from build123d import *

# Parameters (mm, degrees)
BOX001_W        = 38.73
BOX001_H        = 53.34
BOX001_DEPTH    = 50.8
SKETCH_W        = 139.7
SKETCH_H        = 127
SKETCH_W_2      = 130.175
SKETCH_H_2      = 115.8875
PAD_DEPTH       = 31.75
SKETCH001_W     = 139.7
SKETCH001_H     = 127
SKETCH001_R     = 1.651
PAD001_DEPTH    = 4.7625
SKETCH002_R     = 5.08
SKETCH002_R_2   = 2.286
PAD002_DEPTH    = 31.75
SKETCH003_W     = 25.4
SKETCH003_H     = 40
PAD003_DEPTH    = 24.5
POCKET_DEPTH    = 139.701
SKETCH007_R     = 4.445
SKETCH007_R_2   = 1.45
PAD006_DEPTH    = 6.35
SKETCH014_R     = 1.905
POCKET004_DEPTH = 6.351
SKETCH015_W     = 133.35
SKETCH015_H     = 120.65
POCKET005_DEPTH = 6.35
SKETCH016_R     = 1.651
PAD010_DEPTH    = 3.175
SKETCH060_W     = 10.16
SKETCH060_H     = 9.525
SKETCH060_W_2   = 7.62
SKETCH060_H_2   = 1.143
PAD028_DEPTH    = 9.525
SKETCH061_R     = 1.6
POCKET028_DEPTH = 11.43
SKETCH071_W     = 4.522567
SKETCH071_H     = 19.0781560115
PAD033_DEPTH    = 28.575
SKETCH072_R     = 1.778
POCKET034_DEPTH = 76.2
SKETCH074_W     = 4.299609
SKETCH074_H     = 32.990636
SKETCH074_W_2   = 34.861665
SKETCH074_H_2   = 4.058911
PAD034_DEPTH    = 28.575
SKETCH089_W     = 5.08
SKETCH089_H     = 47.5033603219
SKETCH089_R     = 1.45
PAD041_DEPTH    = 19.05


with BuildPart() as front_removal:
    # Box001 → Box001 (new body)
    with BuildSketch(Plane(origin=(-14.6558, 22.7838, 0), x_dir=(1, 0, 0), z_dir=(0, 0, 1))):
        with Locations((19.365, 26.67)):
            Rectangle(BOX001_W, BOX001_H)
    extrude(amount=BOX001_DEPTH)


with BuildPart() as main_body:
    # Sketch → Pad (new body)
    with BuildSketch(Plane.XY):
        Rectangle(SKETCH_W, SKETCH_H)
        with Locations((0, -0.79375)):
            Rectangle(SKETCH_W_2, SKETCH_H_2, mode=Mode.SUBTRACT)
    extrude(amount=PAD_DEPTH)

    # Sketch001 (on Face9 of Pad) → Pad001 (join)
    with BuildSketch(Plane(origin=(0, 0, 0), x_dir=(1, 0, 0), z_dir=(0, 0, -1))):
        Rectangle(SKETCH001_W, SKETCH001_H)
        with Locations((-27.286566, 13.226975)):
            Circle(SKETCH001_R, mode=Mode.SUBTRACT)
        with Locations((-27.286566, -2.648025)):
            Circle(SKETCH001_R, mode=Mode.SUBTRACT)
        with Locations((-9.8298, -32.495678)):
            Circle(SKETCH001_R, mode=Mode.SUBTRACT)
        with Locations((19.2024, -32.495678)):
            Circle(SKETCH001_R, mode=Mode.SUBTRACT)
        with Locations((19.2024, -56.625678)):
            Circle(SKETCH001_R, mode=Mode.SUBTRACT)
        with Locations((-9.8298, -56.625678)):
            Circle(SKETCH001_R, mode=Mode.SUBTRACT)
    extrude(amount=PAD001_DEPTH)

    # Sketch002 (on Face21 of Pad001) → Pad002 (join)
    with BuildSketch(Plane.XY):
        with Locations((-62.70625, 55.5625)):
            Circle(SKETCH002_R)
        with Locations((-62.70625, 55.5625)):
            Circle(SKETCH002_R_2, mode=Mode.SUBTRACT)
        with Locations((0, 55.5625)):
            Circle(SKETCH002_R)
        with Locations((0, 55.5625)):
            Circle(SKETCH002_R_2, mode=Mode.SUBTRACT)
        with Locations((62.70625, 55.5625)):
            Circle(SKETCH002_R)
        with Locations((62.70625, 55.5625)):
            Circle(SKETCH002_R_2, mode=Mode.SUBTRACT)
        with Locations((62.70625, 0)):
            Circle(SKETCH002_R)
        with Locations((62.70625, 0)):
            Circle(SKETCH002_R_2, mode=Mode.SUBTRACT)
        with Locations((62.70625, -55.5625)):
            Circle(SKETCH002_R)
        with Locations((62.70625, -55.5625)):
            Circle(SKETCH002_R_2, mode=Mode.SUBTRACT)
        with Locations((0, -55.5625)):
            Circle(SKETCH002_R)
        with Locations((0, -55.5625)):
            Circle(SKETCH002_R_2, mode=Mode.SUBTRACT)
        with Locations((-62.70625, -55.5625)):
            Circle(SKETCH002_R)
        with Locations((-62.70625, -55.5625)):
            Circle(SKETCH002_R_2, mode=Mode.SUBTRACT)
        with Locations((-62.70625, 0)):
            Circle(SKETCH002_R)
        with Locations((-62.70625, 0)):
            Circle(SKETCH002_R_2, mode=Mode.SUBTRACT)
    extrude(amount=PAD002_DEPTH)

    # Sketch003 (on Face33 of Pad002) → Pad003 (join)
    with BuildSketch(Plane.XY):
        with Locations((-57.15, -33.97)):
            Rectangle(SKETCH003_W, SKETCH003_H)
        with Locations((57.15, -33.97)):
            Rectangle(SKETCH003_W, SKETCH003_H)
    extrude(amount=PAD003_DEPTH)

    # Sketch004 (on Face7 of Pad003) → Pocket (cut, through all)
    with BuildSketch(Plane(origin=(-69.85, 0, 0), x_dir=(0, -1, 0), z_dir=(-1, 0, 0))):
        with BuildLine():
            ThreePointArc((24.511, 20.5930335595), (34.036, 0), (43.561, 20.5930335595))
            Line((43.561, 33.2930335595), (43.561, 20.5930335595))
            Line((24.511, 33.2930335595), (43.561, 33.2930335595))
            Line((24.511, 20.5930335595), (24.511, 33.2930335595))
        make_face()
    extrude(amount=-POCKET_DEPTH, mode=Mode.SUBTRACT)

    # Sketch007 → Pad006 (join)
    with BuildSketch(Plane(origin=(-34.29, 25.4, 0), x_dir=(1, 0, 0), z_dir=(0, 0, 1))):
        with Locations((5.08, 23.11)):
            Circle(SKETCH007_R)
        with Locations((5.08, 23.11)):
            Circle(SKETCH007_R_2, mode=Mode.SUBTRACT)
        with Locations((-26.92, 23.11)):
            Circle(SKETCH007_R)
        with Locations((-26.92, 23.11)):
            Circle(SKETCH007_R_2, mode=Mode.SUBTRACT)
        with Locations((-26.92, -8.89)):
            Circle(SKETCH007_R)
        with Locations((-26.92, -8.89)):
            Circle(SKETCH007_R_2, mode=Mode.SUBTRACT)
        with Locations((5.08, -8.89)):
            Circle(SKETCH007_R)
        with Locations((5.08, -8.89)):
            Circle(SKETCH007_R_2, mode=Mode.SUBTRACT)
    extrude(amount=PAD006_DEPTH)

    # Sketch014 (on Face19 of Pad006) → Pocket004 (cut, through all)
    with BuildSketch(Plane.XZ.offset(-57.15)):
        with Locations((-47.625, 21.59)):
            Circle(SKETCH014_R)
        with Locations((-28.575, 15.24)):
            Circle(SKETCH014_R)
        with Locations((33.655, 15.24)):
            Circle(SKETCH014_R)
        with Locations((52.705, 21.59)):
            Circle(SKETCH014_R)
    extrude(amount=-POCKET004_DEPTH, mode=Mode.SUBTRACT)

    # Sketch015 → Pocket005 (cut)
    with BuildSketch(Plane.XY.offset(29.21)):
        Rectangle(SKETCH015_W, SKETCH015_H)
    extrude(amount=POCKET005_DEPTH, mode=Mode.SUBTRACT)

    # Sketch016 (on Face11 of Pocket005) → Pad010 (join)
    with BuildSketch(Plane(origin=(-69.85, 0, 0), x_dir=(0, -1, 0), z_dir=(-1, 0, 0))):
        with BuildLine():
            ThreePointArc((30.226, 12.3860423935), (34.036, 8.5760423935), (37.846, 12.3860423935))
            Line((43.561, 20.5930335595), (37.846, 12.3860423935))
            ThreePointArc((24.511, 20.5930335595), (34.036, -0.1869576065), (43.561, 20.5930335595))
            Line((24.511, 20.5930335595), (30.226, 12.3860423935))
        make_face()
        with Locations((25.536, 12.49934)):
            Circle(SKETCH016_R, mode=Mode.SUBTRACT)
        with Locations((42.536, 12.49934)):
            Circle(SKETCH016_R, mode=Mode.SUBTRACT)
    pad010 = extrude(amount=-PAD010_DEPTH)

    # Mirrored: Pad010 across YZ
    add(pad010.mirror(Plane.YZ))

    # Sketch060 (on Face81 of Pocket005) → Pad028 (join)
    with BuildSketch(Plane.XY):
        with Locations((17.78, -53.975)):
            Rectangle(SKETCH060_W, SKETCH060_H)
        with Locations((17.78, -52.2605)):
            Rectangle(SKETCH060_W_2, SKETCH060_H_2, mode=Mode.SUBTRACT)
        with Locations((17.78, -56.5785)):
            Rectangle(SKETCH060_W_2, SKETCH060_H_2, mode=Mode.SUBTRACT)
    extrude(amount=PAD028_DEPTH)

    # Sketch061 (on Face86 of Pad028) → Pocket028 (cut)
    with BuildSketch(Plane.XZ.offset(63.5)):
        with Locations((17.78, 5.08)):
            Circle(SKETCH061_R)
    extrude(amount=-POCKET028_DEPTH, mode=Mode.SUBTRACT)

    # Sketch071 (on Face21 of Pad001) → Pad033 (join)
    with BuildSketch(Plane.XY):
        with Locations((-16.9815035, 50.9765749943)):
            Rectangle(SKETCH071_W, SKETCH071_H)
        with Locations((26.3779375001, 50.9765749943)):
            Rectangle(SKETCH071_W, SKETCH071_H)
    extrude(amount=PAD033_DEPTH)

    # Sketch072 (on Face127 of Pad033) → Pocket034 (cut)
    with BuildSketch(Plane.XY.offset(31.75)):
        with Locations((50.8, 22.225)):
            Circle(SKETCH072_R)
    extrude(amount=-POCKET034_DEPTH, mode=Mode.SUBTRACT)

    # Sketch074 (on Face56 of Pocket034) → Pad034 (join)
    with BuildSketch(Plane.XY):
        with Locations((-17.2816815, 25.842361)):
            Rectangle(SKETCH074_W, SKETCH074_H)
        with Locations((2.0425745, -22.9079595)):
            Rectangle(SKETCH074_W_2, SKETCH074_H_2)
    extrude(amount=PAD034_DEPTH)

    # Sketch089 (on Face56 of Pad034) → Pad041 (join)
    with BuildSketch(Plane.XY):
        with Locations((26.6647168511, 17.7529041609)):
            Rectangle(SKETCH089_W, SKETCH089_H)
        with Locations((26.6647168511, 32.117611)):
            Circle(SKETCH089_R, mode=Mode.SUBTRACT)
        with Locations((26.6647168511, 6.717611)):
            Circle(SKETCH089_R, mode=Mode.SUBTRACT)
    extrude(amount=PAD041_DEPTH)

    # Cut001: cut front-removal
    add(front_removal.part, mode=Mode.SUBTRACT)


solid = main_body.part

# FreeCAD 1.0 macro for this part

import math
import FreeCAD as App
import Part
import Sketcher
Q = App.Units.Quantity


def add_polygon(sketch, points):
    """Adds a closed chain of lines whose ends are joined by coincident constraints."""
    first, n = sketch.GeometryCount, len(points)
    for a, b in zip(points, points[1:] + points[:1]):
        sketch.addGeometry(Part.LineSegment(App.Vector(*a, 0), App.Vector(*b, 0)), False)
    for i in range(n):
        sketch.addConstraint(Sketcher.Constraint("Coincident", first + i, 2, first + (i + 1) % n, 1))

doc = App.newDocument("Part")
body = doc.addObject("PartDesign::Body", "Body")

sketch1 = body.newObject("Sketcher::SketchObject", "Sketch")
sketch1.AttachmentSupport = (doc.getObject("XY_Plane"), [""])
sketch1.MapMode = "FlatFace"
add_polygon(sketch1, [(-15, 76), (-15, 23), (24, 23), (24, 76)])
sketch1.addConstraint([
    Sketcher.Constraint("Vertical", 0),
    Sketcher.Constraint("Horizontal", 1),
    Sketcher.Constraint("Vertical", 2),
    Sketcher.Constraint("Horizontal", 3),
    Sketcher.Constraint("DistanceY", 0, 2, 0, 1, Q("2.1 in")),
    Sketcher.Constraint("DistanceX", 0, 2, -1, 1, Q("0.577 in")),
    Sketcher.Constraint("DistanceY", -1, 1, 0, 2, Q("0.897 in")),
    Sketcher.Constraint("DistanceX", 1, 1, 1, 2, 38.73),
])
pad1 = body.newObject("PartDesign::Pad", "Pad")
pad1.Profile = sketch1
pad1.Length = Q("2 in")
body2 = doc.addObject("PartDesign::Body", "Body001")

sketch2 = body2.newObject("Sketcher::SketchObject", "Sketch001")
sketch2.AttachmentSupport = (doc.getObject("XY_Plane001"), [""])
sketch2.MapMode = "FlatFace"
add_polygon(sketch2, [(-70, 64), (-70, -64), (70, -64), (70, 64)])
add_polygon(sketch2, [(65, -59), (-65, -59), (-65, 57), (65, 57)])
sketch2.addConstraint([
    Sketcher.Constraint("Vertical", 0),
    Sketcher.Constraint("Horizontal", 1),
    Sketcher.Constraint("Vertical", 2),
    Sketcher.Constraint("Horizontal", 3),
    Sketcher.Constraint("Horizontal", 4),
    Sketcher.Constraint("Vertical", 5),
    Sketcher.Constraint("Horizontal", 6),
    Sketcher.Constraint("Vertical", 7),
    Sketcher.Constraint("Symmetric", 0, 2, 2, 2, -1, 1),
    Sketcher.Constraint("DistanceY", 0, 2, 0, 1, Q("5 in")),
    Sketcher.Constraint("DistanceX", 1, 1, 1, 2, Q("5.5 in")),
    Sketcher.Constraint("DistanceX", 4, 2, 4, 1, Q("5.125 in")),
    Sketcher.Constraint("DistanceY", 5, 1, 5, 2, Q("4.5625 in")),
    Sketcher.Constraint("DistanceY", -1, 1, 5, 2, Q("2.25 in")),
    Sketcher.Constraint("DistanceX", 4, 2, -1, 1, Q("2.5625 in")),
])
pad2 = body2.newObject("PartDesign::Pad", "Pad001")
pad2.Profile = sketch2
pad2.Length = Q("1.25 in")

sketch3 = body2.newObject("Sketcher::SketchObject", "Sketch002")
sketch3.AttachmentSupport = (doc.getObject("XY_Plane001"), [""])
sketch3.MapMode = "FlatFace"
add_polygon(sketch3, [(-69.8, -63.5), (-69.8, 63.5), (69.8, 63.5), (69.8, -63.5)])
sketch3.addGeometry(Part.Circle(App.Vector(-9.8, 56.6, 0), App.Vector(0, 0, 1), 1.7), False)
sketch3.addGeometry(Part.Circle(App.Vector(-9.8, 32.5, 0), App.Vector(0, 0, 1), 1.7), False)
sketch3.addGeometry(Part.Circle(App.Vector(19.2, 56.6, 0), App.Vector(0, 0, 1), 1.7), False)
sketch3.addGeometry(Part.Circle(App.Vector(19.2, 32.5, 0), App.Vector(0, 0, 1), 1.7), False)
sketch3.addGeometry(Part.Circle(App.Vector(-27.3, 2.6, 0), App.Vector(0, 0, 1), 1.7), False)
sketch3.addGeometry(Part.Circle(App.Vector(-27.3, -13.2, 0), App.Vector(0, 0, 1), 1.7), False)
sketch3.addConstraint([
    Sketcher.Constraint("Vertical", 0),
    Sketcher.Constraint("Horizontal", 1),
    Sketcher.Constraint("Vertical", 2),
    Sketcher.Constraint("Horizontal", 3),
    Sketcher.Constraint("Equal", 4, 5),
    Sketcher.Constraint("Equal", 5, 6),
    Sketcher.Constraint("Equal", 6, 7),
    Sketcher.Constraint("Equal", 7, 8),
    Sketcher.Constraint("Equal", 8, 9),
    Sketcher.Constraint("Symmetric", 0, 2, 2, 2, -1, 1),
    Sketcher.Constraint("Horizontal", 4, 3, 6, 3),
    Sketcher.Constraint("Horizontal", 5, 3, 7, 3),
    Sketcher.Constraint("Vertical", 4, 3, 5, 3),
    Sketcher.Constraint("Vertical", 6, 3, 7, 3),
    Sketcher.Constraint("Vertical", 8, 3, 9, 3),
    Sketcher.Constraint("Diameter", 4, Q("0.13 in")),
    Sketcher.Constraint("DistanceY", 0, 1, 0, 2, Q("5 in")),
    Sketcher.Constraint("DistanceX", 1, 1, 1, 2, Q("5.5 in")),
    Sketcher.Constraint("DistanceY", 5, 3, 4, 3, Q("0.95 in")),
    Sketcher.Constraint("DistanceX", 4, 3, -1, 1, Q("0.387 in")),
    Sketcher.Constraint("DistanceX", -1, 1, 6, 3, Q("0.756 in")),
    Sketcher.Constraint("DistanceY", 9, 3, 8, 3, Q("0.625 in")),
    Sketcher.Constraint("DistanceY", 4, 3, 0, 2, 6.874322),
    Sketcher.Constraint("DistanceX", 8, 3, -1, 1, 27.286566),
    Sketcher.Constraint("DistanceY", -1, 1, 8, 3, 2.648025),
])
pad3 = body2.newObject("PartDesign::Pad", "Pad002")
pad3.Profile = sketch3
pad3.Length = Q("0.1875 in")
pad3.Reversed = True

sketch4 = body2.newObject("Sketcher::SketchObject", "Sketch003")
sketch4.AttachmentSupport = (doc.getObject("XY_Plane001"), [""])
sketch4.MapMode = "FlatFace"
sketch4.addGeometry([
    Part.Circle(App.Vector(-62.7, 55.6, 0), App.Vector(0, 0, 1), 5.1),
    Part.Circle(App.Vector(-62.7, 55.6, 0), App.Vector(0, 0, 1), 2.3),
    Part.Circle(App.Vector(0, 55.6, 0), App.Vector(0, 0, 1), 5.1),
    Part.Circle(App.Vector(0, 55.6, 0), App.Vector(0, 0, 1), 2.3),
    Part.Circle(App.Vector(62.7, 55.6, 0), App.Vector(0, 0, 1), 5.1),
    Part.Circle(App.Vector(62.7, 55.6, 0), App.Vector(0, 0, 1), 2.3),
    Part.Circle(App.Vector(62.7, 0, 0), App.Vector(0, 0, 1), 5.1),
    Part.Circle(App.Vector(62.7, 0, 0), App.Vector(0, 0, 1), 2.3),
    Part.Circle(App.Vector(62.7, -55.6, 0), App.Vector(0, 0, 1), 5.1),
    Part.Circle(App.Vector(62.7, -55.6, 0), App.Vector(0, 0, 1), 2.3),
    Part.Circle(App.Vector(0, -55.6, 0), App.Vector(0, 0, 1), 5.1),
    Part.Circle(App.Vector(0, -55.6, 0), App.Vector(0, 0, 1), 2.3),
    Part.Circle(App.Vector(-62.7, -55.6, 0), App.Vector(0, 0, 1), 5.1),
    Part.Circle(App.Vector(-62.7, -55.6, 0), App.Vector(0, 0, 1), 2.3),
    Part.Circle(App.Vector(-62.7, 0, 0), App.Vector(0, 0, 1), 5.1),
    Part.Circle(App.Vector(-62.7, 0, 0), App.Vector(0, 0, 1), 2.3),
], False)
sketch4.addConstraint([
    Sketcher.Constraint("Coincident", 1, 3, 0, 3),
    Sketcher.Constraint("Coincident", 3, 3, 2, 3),
    Sketcher.Constraint("Coincident", 5, 3, 4, 3),
    Sketcher.Constraint("Coincident", 7, 3, 6, 3),
    Sketcher.Constraint("Coincident", 9, 3, 8, 3),
    Sketcher.Constraint("Coincident", 11, 3, 10, 3),
    Sketcher.Constraint("Coincident", 13, 3, 12, 3),
    Sketcher.Constraint("Coincident", 15, 3, 14, 3),
    Sketcher.Constraint("Equal", 0, 2),
    Sketcher.Constraint("Equal", 1, 3),
    Sketcher.Constraint("Equal", 2, 4),
    Sketcher.Constraint("Equal", 3, 5),
    Sketcher.Constraint("Equal", 4, 6),
    Sketcher.Constraint("Equal", 5, 7),
    Sketcher.Constraint("Equal", 6, 8),
    Sketcher.Constraint("Equal", 7, 9),
    Sketcher.Constraint("Equal", 8, 10),
    Sketcher.Constraint("Equal", 9, 11),
    Sketcher.Constraint("Equal", 10, 12),
    Sketcher.Constraint("Equal", 11, 13),
    Sketcher.Constraint("Equal", 12, 14),
    Sketcher.Constraint("Equal", 13, 15),
    Sketcher.Constraint("Symmetric", 0, 3, 8, 3, -1, 1),
    Sketcher.Constraint("Symmetric", 2, 3, 10, 3, -1, 1),
    Sketcher.Constraint("Symmetric", 4, 3, 12, 3, -1, 1),
    Sketcher.Constraint("Symmetric", 6, 3, 14, 3, -1, 1),
    Sketcher.Constraint("Symmetric", 0, 3, 4, 3, -2),
    Sketcher.Constraint("PointOnObject", 2, 3, -2),
    Sketcher.Constraint("PointOnObject", 6, 3, -1),
    Sketcher.Constraint("Horizontal", 1, 3, 2, 3),
    Sketcher.Constraint("Vertical", 5, 3, 6, 3),
    Sketcher.Constraint("Diameter", 0, Q("0.4 in")),
    Sketcher.Constraint("Diameter", 1, Q("0.18 in")),
    Sketcher.Constraint("DistanceX", 0, 3, -1, 1, Q("2.46875 in")),
    Sketcher.Constraint("DistanceY", -1, 1, 0, 3, Q("2.1875 in")),
])
pad4 = body2.newObject("PartDesign::Pad", "Pad003")
pad4.Profile = sketch4
pad4.Length = Q("1.25 in")

sketch5 = body2.newObject("Sketcher::SketchObject", "Sketch004")
sketch5.AttachmentSupport = (doc.getObject("XY_Plane001"), [""])
sketch5.MapMode = "FlatFace"
add_polygon(sketch5, [(-70, -14), (-70, -54), (-44, -54), (-44, -14)])
add_polygon(sketch5, [(44, -14), (44, -54), (70, -54), (70, -14)])
sketch5.addConstraint([
    Sketcher.Constraint("Vertical", 0),
    Sketcher.Constraint("Horizontal", 1),
    Sketcher.Constraint("Vertical", 2),
    Sketcher.Constraint("Horizontal", 3),
    Sketcher.Constraint("Vertical", 4),
    Sketcher.Constraint("Horizontal", 5),
    Sketcher.Constraint("Vertical", 6),
    Sketcher.Constraint("Horizontal", 7),
    Sketcher.Constraint("Symmetric", 1, 2, 4, 2, -2),
    Sketcher.Constraint("Symmetric", 3, 2, 6, 2, -2),
    Sketcher.Constraint("DistanceX", 1, 1, 1, 2, Q("1 in")),
    Sketcher.Constraint("DistanceX", 1, 2, 4, 2, Q("3.5 in")),
    Sketcher.Constraint("DistanceY", 2, 2, -1, 1, Q("0.55 in")),
    Sketcher.Constraint("DistanceY", 0, 2, 0, 1, 40.0),
])
pad5 = body2.newObject("PartDesign::Pad", "Pad004")
pad5.Profile = sketch5
pad5.Length = 24.5

sketch6 = body2.newObject("Sketcher::SketchObject", "Sketch005")
sketch6.AttachmentSupport = (doc.getObject("YZ_Plane001"), [""])
sketch6.MapMode = "FlatFace"
sketch6.AttachmentOffset = App.Placement(App.Vector(0, 0, -2.75 * 25.4), App.Rotation())
sketch6.addGeometry([
    Part.ArcOfCircle(Part.Circle(App.Vector(-34, 12, 0), App.Vector(0, 0, 1), 12), math.radians(140), math.radians(400)),
    Part.LineSegment(App.Vector(-44, 21, 0), App.Vector(-44, 33, 0)),
    Part.LineSegment(App.Vector(-44, 33, 0), App.Vector(-25, 33, 0)),
    Part.LineSegment(App.Vector(-25, 33, 0), App.Vector(-25, 21, 0)),
], False)
sketch6.addConstraint([
    Sketcher.Constraint("Coincident", 0, 1, 1, 1),
    Sketcher.Constraint("Coincident", 1, 2, 2, 1),
    Sketcher.Constraint("Coincident", 2, 2, 3, 1),
    Sketcher.Constraint("Coincident", 3, 2, 0, 2),
    Sketcher.Constraint("Vertical", 1),
    Sketcher.Constraint("Horizontal", 2),
    Sketcher.Constraint("Vertical", 3),
    Sketcher.Constraint("Horizontal", 0, 1, 3, 2),
    Sketcher.Constraint("DistanceY", 1, 1, 1, 2, Q("0.5 in")),
    Sketcher.Constraint("DistanceX", 2, 1, 2, 2, Q("0.75 in")),
    Sketcher.Constraint("Radius", 0, Q("0.4921 in")),
    Sketcher.Constraint("DistanceX", 0, 3, -1, 1, Q("1.34 in")),
    Sketcher.Constraint("DistanceY", -1, 1, 0, 3, Q("0.4921 in")),
])
pocket1 = body2.newObject("PartDesign::Pocket", "Pocket")
pocket1.Profile = sketch6
pocket1.Type = "ThroughAll"
pocket1.Reversed = True

sketch7 = body2.newObject("Sketcher::SketchObject", "Sketch006")
sketch7.AttachmentSupport = (doc.getObject("XY_Plane001"), [""])
sketch7.MapMode = "FlatFace"
sketch7.addGeometry([
    Part.Circle(App.Vector(-29.2, 48.5, 0), App.Vector(0, 0, 1), 4.4),
    Part.Circle(App.Vector(-29.2, 48.5, 0), App.Vector(0, 0, 1), 1.4),
    Part.Circle(App.Vector(-61.2, 48.5, 0), App.Vector(0, 0, 1), 4.4),
    Part.Circle(App.Vector(-61.2, 48.5, 0), App.Vector(0, 0, 1), 1.4),
    Part.Circle(App.Vector(-61.2, 16.5, 0), App.Vector(0, 0, 1), 4.4),
    Part.Circle(App.Vector(-61.2, 16.5, 0), App.Vector(0, 0, 1), 1.4),
    Part.Circle(App.Vector(-29.2, 16.5, 0), App.Vector(0, 0, 1), 4.4),
    Part.Circle(App.Vector(-29.2, 16.5, 0), App.Vector(0, 0, 1), 1.4),
], False)
sketch7.addConstraint([
    Sketcher.Constraint("Coincident", 1, 3, 0, 3),
    Sketcher.Constraint("Coincident", 3, 3, 2, 3),
    Sketcher.Constraint("Coincident", 5, 3, 4, 3),
    Sketcher.Constraint("Coincident", 7, 3, 6, 3),
    Sketcher.Constraint("Equal", 0, 2),
    Sketcher.Constraint("Equal", 1, 3),
    Sketcher.Constraint("Equal", 2, 4),
    Sketcher.Constraint("Equal", 3, 5),
    Sketcher.Constraint("Equal", 4, 6),
    Sketcher.Constraint("Equal", 5, 7),
    Sketcher.Constraint("Horizontal", 1, 3, 2, 3),
    Sketcher.Constraint("Horizontal", 5, 3, 6, 3),
    Sketcher.Constraint("Vertical", 3, 3, 4, 3),
    Sketcher.Constraint("Vertical", 1, 3, 6, 3),
    Sketcher.Constraint("Diameter", 0, Q("0.35 in")),
    Sketcher.Constraint("Diameter", 1, 2.9),
    Sketcher.Constraint("DistanceX", 0, 3, -1, 1, Q("1.15 in")),
    Sketcher.Constraint("DistanceY", -1, 1, 4, 3, Q("0.65 in")),
    Sketcher.Constraint("DistanceY", -1, 1, 0, 3, 48.51),
    Sketcher.Constraint("DistanceX", 2, 3, -1, 1, 61.21),
])
pad6 = body2.newObject("PartDesign::Pad", "Pad005")
pad6.Profile = sketch7
pad6.Length = Q("0.25 in")

sketch8 = body2.newObject("Sketcher::SketchObject", "Sketch007")
sketch8.AttachmentSupport = (doc.getObject("XZ_Plane001"), [""])
sketch8.MapMode = "FlatFace"
sketch8.AttachmentOffset = App.Placement(App.Vector(0, 0, -2.25 * 25.4), App.Rotation())
sketch8.addGeometry([
    Part.Circle(App.Vector(-47.6, 21.6, 0), App.Vector(0, 0, 1), 1.9),
    Part.Circle(App.Vector(-28.6, 15.2, 0), App.Vector(0, 0, 1), 1.9),
    Part.Circle(App.Vector(33.7, 15.2, 0), App.Vector(0, 0, 1), 1.9),
    Part.Circle(App.Vector(52.7, 21.6, 0), App.Vector(0, 0, 1), 1.9),
], False)
sketch8.addConstraint([
    Sketcher.Constraint("Equal", 0, 1),
    Sketcher.Constraint("Equal", 1, 2),
    Sketcher.Constraint("Equal", 2, 3),
    Sketcher.Constraint("Horizontal", 1, 3, 2, 3),
    Sketcher.Constraint("Horizontal", 0, 3, 3, 3),
    Sketcher.Constraint("Diameter", 0, Q("0.15 in")),
    Sketcher.Constraint("DistanceY", -1, 1, 1, 3, Q("0.6 in")),
    Sketcher.Constraint("DistanceX", 0, 3, 2, 3, Q("3.2 in")),
    Sketcher.Constraint("DistanceX", 1, 3, 3, 3, Q("3.2 in")),
    Sketcher.Constraint("DistanceY", -1, 1, 0, 3, Q("0.85 in")),
    Sketcher.Constraint("DistanceX", 0, 3, 1, 3, Q("0.75 in")),
    Sketcher.Constraint("DistanceX", 0, 3, -1, 1, Q("1.875 in")),
])
pocket2 = body2.newObject("PartDesign::Pocket", "Pocket001")
pocket2.Profile = sketch8
pocket2.Type = "ThroughAll"

sketch9 = body2.newObject("Sketcher::SketchObject", "Sketch008")
sketch9.AttachmentSupport = (doc.getObject("XY_Plane001"), [""])
sketch9.MapMode = "FlatFace"
sketch9.AttachmentOffset = App.Placement(App.Vector(0, 0, 1.15 * 25.4), App.Rotation())
add_polygon(sketch9, [(-67, 60), (-67, -60), (67, -60), (67, 60)])
sketch9.addConstraint([
    Sketcher.Constraint("Vertical", 0),
    Sketcher.Constraint("Horizontal", 1),
    Sketcher.Constraint("Vertical", 2),
    Sketcher.Constraint("Horizontal", 3),
    Sketcher.Constraint("Symmetric", 0, 2, 2, 2, -1, 1),
    Sketcher.Constraint("DistanceX", 1, 1, 1, 2, Q("5.25 in")),
    Sketcher.Constraint("DistanceY", 0, 2, 0, 1, Q("4.75 in")),
])
pocket3 = body2.newObject("PartDesign::Pocket", "Pocket002")
pocket3.Profile = sketch9
pocket3.Length = Q("0.25 in")
pocket3.Reversed = True

sketch10 = body2.newObject("Sketcher::SketchObject", "Sketch009")
sketch10.AttachmentSupport = (doc.getObject("YZ_Plane001"), [""])
sketch10.MapMode = "FlatFace"
sketch10.AttachmentOffset = App.Placement(App.Vector(0, 0, -2.75 * 25.4), App.Rotation())
sketch10.addGeometry([
    Part.ArcOfCircle(Part.Circle(App.Vector(-34, 12.4, 0), App.Vector(0, 0, 1), 3.8), math.radians(180), math.radians(360)),
    Part.LineSegment(App.Vector(-30.2, 12.4, 0), App.Vector(-24.5, 20.6, 0)),
    Part.ArcOfCircle(Part.Circle(App.Vector(-34, 12.4, 0), App.Vector(0, 0, 1), 12.6), math.radians(139), math.radians(401)),
    Part.LineSegment(App.Vector(-43.6, 20.6, 0), App.Vector(-37.8, 12.4, 0)),
    Part.Circle(App.Vector(-42.5, 12.5, 0), App.Vector(0, 0, 1), 1.7),
    Part.Circle(App.Vector(-25.5, 12.5, 0), App.Vector(0, 0, 1), 1.7),
], False)
sketch10.addConstraint([
    Sketcher.Constraint("Coincident", 0, 2, 1, 1),
    Sketcher.Constraint("Coincident", 1, 2, 2, 2),
    Sketcher.Constraint("Coincident", 2, 1, 3, 1),
    Sketcher.Constraint("Coincident", 3, 2, 0, 1),
    Sketcher.Constraint("Coincident", 2, 3, 0, 3),
    Sketcher.Constraint("Equal", 4, 5),
    Sketcher.Constraint("Horizontal", 4, 3, 5, 3),
    Sketcher.Constraint("Horizontal", 2, 3, 0, 2),
    Sketcher.Constraint("Horizontal", 1, 2, 2, 1),
    Sketcher.Constraint("Horizontal", 0, 2, 3, 2),
    Sketcher.Constraint("Diameter", 4, Q("0.13 in")),
    Sketcher.Constraint("Radius", 0, Q("0.15 in")),
    Sketcher.Constraint("Radius", 2, Q("0.495 in")),
    Sketcher.Constraint("DistanceX", 0, 3, -1, 1, Q("1.34 in")),
    Sketcher.Constraint("DistanceX", 2, 1, 1, 2, Q("0.75 in")),
    Sketcher.Constraint("DistanceY", -1, 1, 4, 3, Q("0.4921 in")),
    Sketcher.Constraint("DistanceX", 4, 3, -1, 1, 42.536),
    Sketcher.Constraint("DistanceX", 5, 3, -1, 1, 25.536),
    Sketcher.Constraint("DistanceY", -1, 1, 0, 3, 12.386042),
])
pad7 = body2.newObject("PartDesign::Pad", "Pad006")
pad7.Profile = sketch10
pad7.Length = Q("0.125 in")
doc.recompute()

mirrored = body2.newObject("PartDesign::Mirrored", "Mirrored")
mirrored.Originals = [pad7]
mirrored.MirrorPlane = (doc.getObject("YZ_Plane001"), [""])
body2.Tip = mirrored

sketch11 = body2.newObject("Sketcher::SketchObject", "Sketch010")
sketch11.AttachmentSupport = (doc.getObject("XY_Plane001"), [""])
sketch11.MapMode = "FlatFace"
add_polygon(sketch11, [(12.7, -49.2), (12.7, -58.7), (22.9, -58.7), (22.9, -49.2)])
add_polygon(sketch11, [(21.6, -57.1), (14, -57.1), (14, -56), (21.6, -56)])
add_polygon(sketch11, [(21.6, -52.8), (14, -52.8), (14, -51.7), (21.6, -51.7)])
sketch11.addConstraint([
    Sketcher.Constraint("Vertical", 0),
    Sketcher.Constraint("Horizontal", 1),
    Sketcher.Constraint("Vertical", 2),
    Sketcher.Constraint("Horizontal", 3),
    Sketcher.Constraint("Horizontal", 4),
    Sketcher.Constraint("Vertical", 5),
    Sketcher.Constraint("Horizontal", 6),
    Sketcher.Constraint("Vertical", 7),
    Sketcher.Constraint("Horizontal", 8),
    Sketcher.Constraint("Vertical", 9),
    Sketcher.Constraint("Horizontal", 10),
    Sketcher.Constraint("Vertical", 11),
    Sketcher.Constraint("Vertical", 5, 2, 8, 2),
    Sketcher.Constraint("Vertical", 7, 2, 10, 2),
    Sketcher.Constraint("Equal", 7, 9),
    Sketcher.Constraint("DistanceX", 1, 1, 1, 2, Q("0.4 in")),
    Sketcher.Constraint("DistanceX", 4, 2, 4, 1, Q("0.3 in")),
    Sketcher.Constraint("DistanceX", -1, 1, 0, 2, Q("0.5 in")),
    Sketcher.Constraint("DistanceY", 0, 2, 0, 1, Q("0.375 in")),
    Sketcher.Constraint("DistanceY", 5, 1, 5, 2, Q("0.045 in")),
    Sketcher.Constraint("DistanceX", -1, 1, 4, 2, Q("0.55 in")),
    Sketcher.Constraint("DistanceY", 4, 2, -1, 1, Q("2.25 in")),
    Sketcher.Constraint("DistanceY", 8, 2, -1, 1, Q("2.08 in")),
    Sketcher.Constraint("DistanceY", 0, 2, -1, 1, Q("2.3125 in")),
])
pad8 = body2.newObject("PartDesign::Pad", "Pad007")
pad8.Profile = sketch11
pad8.Length = Q("0.375 in")

sketch12 = body2.newObject("Sketcher::SketchObject", "Sketch011")
sketch12.AttachmentSupport = (doc.getObject("XZ_Plane001"), [""])
sketch12.MapMode = "FlatFace"
sketch12.AttachmentOffset = App.Placement(App.Vector(0, 0, 2.5 * 25.4), App.Rotation())
sketch12.addGeometry(Part.Circle(App.Vector(17.8, 5.1, 0), App.Vector(0, 0, 1), 1.6), False)
sketch12.addConstraint([
    Sketcher.Constraint("DistanceX", -1, 1, 0, 3, Q("0.7 in")),
    Sketcher.Constraint("DistanceY", -1, 1, 0, 3, Q("0.2 in")),
    Sketcher.Constraint("Diameter", 0, 3.2),
])
pocket4 = body2.newObject("PartDesign::Pocket", "Pocket003")
pocket4.Profile = sketch12
pocket4.Length = Q("0.45 in")

sketch13 = body2.newObject("Sketcher::SketchObject", "Sketch012")
sketch13.AttachmentSupport = (doc.getObject("XY_Plane001"), [""])
sketch13.MapMode = "FlatFace"
add_polygon(sketch13, [(-19.2, 60.5), (-19.2, 41.4), (-14.7, 41.4), (-14.7, 60.5)])
add_polygon(sketch13, [(24.1, 60.5), (24.1, 41.4), (28.6, 41.4), (28.6, 60.5)])
sketch13.addConstraint([
    Sketcher.Constraint("Vertical", 0),
    Sketcher.Constraint("Horizontal", 1),
    Sketcher.Constraint("Vertical", 2),
    Sketcher.Constraint("Horizontal", 3),
    Sketcher.Constraint("Vertical", 4),
    Sketcher.Constraint("Horizontal", 5),
    Sketcher.Constraint("Vertical", 6),
    Sketcher.Constraint("Horizontal", 7),
    Sketcher.Constraint("Horizontal", 1, 2, 4, 2),
    Sketcher.Constraint("Horizontal", 3, 2, 6, 2),
    Sketcher.Constraint("Equal", 3, 5),
    Sketcher.Constraint("DistanceX", 1, 1, 1, 2, 4.522567),
    Sketcher.Constraint("DistanceY", 0, 2, 0, 1, 19.078156),
    Sketcher.Constraint("DistanceX", 1, 2, -1, 1, 14.72022),
    Sketcher.Constraint("DistanceX", -1, 1, 5, 2, 28.639221),
    Sketcher.Constraint("DistanceY", -1, 1, 0, 2, 41.437497),
])
pad9 = body2.newObject("PartDesign::Pad", "Pad008")
pad9.Profile = sketch13
pad9.Length = Q("1.125 in")

sketch14 = body2.newObject("Sketcher::SketchObject", "Sketch013")
sketch14.AttachmentSupport = (doc.getObject("XY_Plane001"), [""])
sketch14.MapMode = "FlatFace"
sketch14.AttachmentOffset = App.Placement(App.Vector(0, 0, 1.25 * 25.4), App.Rotation())
sketch14.addGeometry(Part.Circle(App.Vector(50.8, 22.2, 0), App.Vector(0, 0, 1), 1.8), False)
sketch14.addConstraint([
    Sketcher.Constraint("Diameter", 0, Q("0.14 in")),
    Sketcher.Constraint("DistanceX", -1, 1, 0, 3, Q("2 in")),
    Sketcher.Constraint("DistanceY", -1, 1, 0, 3, Q("0.875 in")),
])
pocket5 = body2.newObject("PartDesign::Pocket", "Pocket004")
pocket5.Profile = sketch14
pocket5.Length = Q("3 in")

sketch15 = body2.newObject("Sketcher::SketchObject", "Sketch014")
sketch15.AttachmentSupport = (doc.getObject("XY_Plane001"), [""])
sketch15.MapMode = "FlatFace"
add_polygon(sketch15, [(-19.4, 42.3), (-19.4, 9.3), (-15.1, 9.3), (-15.1, 42.3)])
add_polygon(sketch15, [(-15.4, -20.9), (-15.4, -24.9), (19.5, -24.9), (19.5, -20.9)])
sketch15.addConstraint([
    Sketcher.Constraint("Vertical", 0),
    Sketcher.Constraint("Horizontal", 1),
    Sketcher.Constraint("Vertical", 2),
    Sketcher.Constraint("Horizontal", 3),
    Sketcher.Constraint("Vertical", 4),
    Sketcher.Constraint("Horizontal", 5),
    Sketcher.Constraint("Vertical", 6),
    Sketcher.Constraint("Horizontal", 7),
    Sketcher.Constraint("DistanceX", 1, 1, 1, 2, 4.299609),
    Sketcher.Constraint("DistanceY", 4, 2, 4, 1, 4.058911),
    Sketcher.Constraint("DistanceX", 5, 1, 5, 2, 34.861665),
    Sketcher.Constraint("DistanceY", 0, 2, 0, 1, 32.990636),
    Sketcher.Constraint("DistanceY", -1, 1, 2, 2, 42.337679),
    Sketcher.Constraint("DistanceX", 4, 2, 1, 2, 0.256381),
    Sketcher.Constraint("DistanceX", 0, 2, -1, 1, 19.431486),
    Sketcher.Constraint("DistanceY", 4, 2, -1, 1, 24.937415),
])
pad10 = body2.newObject("PartDesign::Pad", "Pad009")
pad10.Profile = sketch15
pad10.Length = Q("1.125 in")

sketch16 = body2.newObject("Sketcher::SketchObject", "Sketch015")
sketch16.AttachmentSupport = (doc.getObject("XY_Plane001"), [""])
sketch16.MapMode = "FlatFace"
add_polygon(sketch16, [(24.1, 41.5), (24.1, -6), (29.2, -6), (29.2, 41.5)])
sketch16.addGeometry(Part.Circle(App.Vector(26.7, 6.7, 0), App.Vector(0, 0, 1), 1.4), False)
sketch16.addGeometry(Part.Circle(App.Vector(26.7, 32.1, 0), App.Vector(0, 0, 1), 1.4), False)
sketch16.addConstraint([
    Sketcher.Constraint("Vertical", 0),
    Sketcher.Constraint("Horizontal", 1),
    Sketcher.Constraint("Vertical", 2),
    Sketcher.Constraint("Horizontal", 3),
    Sketcher.Constraint("Equal", 4, 5),
    Sketcher.Constraint("Vertical", 4, 3, 5, 3),
    Sketcher.Constraint("DistanceX", 1, 1, 1, 2, Q("0.2 in")),
    Sketcher.Constraint("DistanceY", 4, 3, 5, 3, Q("1 in")),
    Sketcher.Constraint("DistanceX", 0, 2, 4, 3, Q("0.1 in")),
    Sketcher.Constraint("Diameter", 4, 2.9),
    Sketcher.Constraint("DistanceY", 0, 2, 0, 1, 47.50336),
    Sketcher.Constraint("DistanceY", -1, 1, 4, 3, 6.717611),
    Sketcher.Constraint("DistanceX", -1, 1, 4, 3, 26.664717),
    Sketcher.Constraint("DistanceY", 0, 2, -1, 1, 5.998776),
])
pad11 = body2.newObject("PartDesign::Pad", "Pad010")
pad11.Profile = sketch16
pad11.Length = Q("0.75 in")
doc.recompute()

boolean = body2.newObject("PartDesign::Boolean", "Boolean")
boolean.Type = "Cut"
boolean.addObjects([body])

doc.recompute()
